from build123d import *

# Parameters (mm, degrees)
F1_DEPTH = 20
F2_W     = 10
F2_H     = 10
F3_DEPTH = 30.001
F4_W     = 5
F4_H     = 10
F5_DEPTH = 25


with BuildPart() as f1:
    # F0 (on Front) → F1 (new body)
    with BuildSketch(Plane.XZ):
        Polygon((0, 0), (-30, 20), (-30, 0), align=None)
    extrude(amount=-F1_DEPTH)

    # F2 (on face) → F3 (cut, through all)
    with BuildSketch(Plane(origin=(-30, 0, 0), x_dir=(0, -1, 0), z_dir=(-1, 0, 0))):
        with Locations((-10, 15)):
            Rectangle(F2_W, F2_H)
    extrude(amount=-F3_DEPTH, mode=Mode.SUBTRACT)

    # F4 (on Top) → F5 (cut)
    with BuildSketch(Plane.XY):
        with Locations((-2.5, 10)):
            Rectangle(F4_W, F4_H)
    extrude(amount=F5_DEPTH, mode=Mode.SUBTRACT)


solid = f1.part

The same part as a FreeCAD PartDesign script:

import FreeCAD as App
import Part
import Sketcher
from FreeCAD import Vector


def add_polygon(sketch, points):
    """Adds a closed chain of lines whose ends are joined by coincident constraints."""
    first, n = sketch.GeometryCount, len(points)
    for a, b in zip(points, points[1:] + points[:1]):
        sketch.addGeometry(Part.LineSegment(App.Vector(*a, 0), App.Vector(*b, 0)), False)
    for i in range(n):
        sketch.addConstraint(Sketcher.Constraint("Coincident", first + i, 2, first + (i + 1) % n, 1))

doc = App.newDocument("Part")
body = doc.addObject("PartDesign::Body", "Body")

# Sketch on XZ plane
sketch1 = body.newObject("Sketcher::SketchObject", "Sketch")
sketch1.AttachmentSupport = (doc.getObject("XZ_Plane"), [""])
sketch1.MapMode = "FlatFace"
add_polygon(sketch1, [(0, 0), (-30, 20), (-30, 0)])  # lines 0-2
sketch1.addConstraint(Sketcher.Constraint("Vertical", 1))
sketch1.addConstraint(Sketcher.Constraint("Horizontal", 2))
sketch1.addConstraint(Sketcher.Constraint("Coincident", 2, 2, -1, 1))
sketch1.addConstraint(Sketcher.Constraint("DistanceX", 2, 1, 2, 2, 30.0))
sketch1.addConstraint(Sketcher.Constraint("DistanceY", 1, 2, 1, 1, 20.0))
pad1 = body.newObject("PartDesign::Pad", "Pad")
pad1.Profile = sketch1
pad1.Length = 20
pad1.Reversed = True

# Sketch on YZ plane
sketch2 = body.newObject("Sketcher::SketchObject", "Sketch001")
sketch2.AttachmentSupport = (doc.getObject("YZ_Plane"), [""])
sketch2.MapMode = "FlatFace"
sketch2.AttachmentOffset = App.Placement(Vector(0, 0, -30), App.Rotation())
add_polygon(sketch2, [(15, 20), (15, 10), (5, 10), (5, 20)])  # lines 0-3
sketch2.addConstraint(Sketcher.Constraint("Vertical", 0))
sketch2.addConstraint(Sketcher.Constraint("Horizontal", 1))
sketch2.addConstraint(Sketcher.Constraint("Vertical", 2))
sketch2.addConstraint(Sketcher.Constraint("Horizontal", 3))
sketch2.addConstraint(Sketcher.Constraint("Equal", 3, 0))
sketch2.addConstraint(Sketcher.Constraint("DistanceX", 1, 2, 1, 1, 10.0))
sketch2.addConstraint(Sketcher.Constraint("DistanceX", -1, 1, 0, 2, 15.0))
sketch2.addConstraint(Sketcher.Constraint("DistanceY", -1, 1, 0, 2, 10.0))
pocket1 = body.newObject("PartDesign::Pocket", "Pocket")
pocket1.Profile = sketch2
pocket1.Type = "ThroughAll"
pocket1.Reversed = True

# Sketch on XY plane
sketch3 = body.newObject("Sketcher::SketchObject", "Sketch002")
sketch3.AttachmentSupport = (doc.getObject("XY_Plane"), [""])
sketch3.MapMode = "FlatFace"
add_polygon(sketch3, [(-5, 15), (-5, 5), (0, 5), (0, 15)])  # lines 0-3
sketch3.addConstraint(Sketcher.Constraint("Vertical", 0))
sketch3.addConstraint(Sketcher.Constraint("Horizontal", 1))
sketch3.addConstraint(Sketcher.Constraint("Vertical", 2))
sketch3.addConstraint(Sketcher.Constraint("Horizontal", 3))
sketch3.addConstraint(Sketcher.Constraint("PointOnObject", 1, 2, -2))
sketch3.addConstraint(Sketcher.Constraint("DistanceX", 1, 1, 1, 2, 5.0))
sketch3.addConstraint(Sketcher.Constraint("DistanceY", 0, 2, 0, 1, 10.0))
sketch3.addConstraint(Sketcher.Constraint("DistanceY", -1, 1, 0, 2, 5.0))
pocket2 = body.newObject("PartDesign::Pocket", "Pocket001")
pocket2.Profile = sketch3
pocket2.Length = 25
pocket2.Reversed = True

doc.recompute()
